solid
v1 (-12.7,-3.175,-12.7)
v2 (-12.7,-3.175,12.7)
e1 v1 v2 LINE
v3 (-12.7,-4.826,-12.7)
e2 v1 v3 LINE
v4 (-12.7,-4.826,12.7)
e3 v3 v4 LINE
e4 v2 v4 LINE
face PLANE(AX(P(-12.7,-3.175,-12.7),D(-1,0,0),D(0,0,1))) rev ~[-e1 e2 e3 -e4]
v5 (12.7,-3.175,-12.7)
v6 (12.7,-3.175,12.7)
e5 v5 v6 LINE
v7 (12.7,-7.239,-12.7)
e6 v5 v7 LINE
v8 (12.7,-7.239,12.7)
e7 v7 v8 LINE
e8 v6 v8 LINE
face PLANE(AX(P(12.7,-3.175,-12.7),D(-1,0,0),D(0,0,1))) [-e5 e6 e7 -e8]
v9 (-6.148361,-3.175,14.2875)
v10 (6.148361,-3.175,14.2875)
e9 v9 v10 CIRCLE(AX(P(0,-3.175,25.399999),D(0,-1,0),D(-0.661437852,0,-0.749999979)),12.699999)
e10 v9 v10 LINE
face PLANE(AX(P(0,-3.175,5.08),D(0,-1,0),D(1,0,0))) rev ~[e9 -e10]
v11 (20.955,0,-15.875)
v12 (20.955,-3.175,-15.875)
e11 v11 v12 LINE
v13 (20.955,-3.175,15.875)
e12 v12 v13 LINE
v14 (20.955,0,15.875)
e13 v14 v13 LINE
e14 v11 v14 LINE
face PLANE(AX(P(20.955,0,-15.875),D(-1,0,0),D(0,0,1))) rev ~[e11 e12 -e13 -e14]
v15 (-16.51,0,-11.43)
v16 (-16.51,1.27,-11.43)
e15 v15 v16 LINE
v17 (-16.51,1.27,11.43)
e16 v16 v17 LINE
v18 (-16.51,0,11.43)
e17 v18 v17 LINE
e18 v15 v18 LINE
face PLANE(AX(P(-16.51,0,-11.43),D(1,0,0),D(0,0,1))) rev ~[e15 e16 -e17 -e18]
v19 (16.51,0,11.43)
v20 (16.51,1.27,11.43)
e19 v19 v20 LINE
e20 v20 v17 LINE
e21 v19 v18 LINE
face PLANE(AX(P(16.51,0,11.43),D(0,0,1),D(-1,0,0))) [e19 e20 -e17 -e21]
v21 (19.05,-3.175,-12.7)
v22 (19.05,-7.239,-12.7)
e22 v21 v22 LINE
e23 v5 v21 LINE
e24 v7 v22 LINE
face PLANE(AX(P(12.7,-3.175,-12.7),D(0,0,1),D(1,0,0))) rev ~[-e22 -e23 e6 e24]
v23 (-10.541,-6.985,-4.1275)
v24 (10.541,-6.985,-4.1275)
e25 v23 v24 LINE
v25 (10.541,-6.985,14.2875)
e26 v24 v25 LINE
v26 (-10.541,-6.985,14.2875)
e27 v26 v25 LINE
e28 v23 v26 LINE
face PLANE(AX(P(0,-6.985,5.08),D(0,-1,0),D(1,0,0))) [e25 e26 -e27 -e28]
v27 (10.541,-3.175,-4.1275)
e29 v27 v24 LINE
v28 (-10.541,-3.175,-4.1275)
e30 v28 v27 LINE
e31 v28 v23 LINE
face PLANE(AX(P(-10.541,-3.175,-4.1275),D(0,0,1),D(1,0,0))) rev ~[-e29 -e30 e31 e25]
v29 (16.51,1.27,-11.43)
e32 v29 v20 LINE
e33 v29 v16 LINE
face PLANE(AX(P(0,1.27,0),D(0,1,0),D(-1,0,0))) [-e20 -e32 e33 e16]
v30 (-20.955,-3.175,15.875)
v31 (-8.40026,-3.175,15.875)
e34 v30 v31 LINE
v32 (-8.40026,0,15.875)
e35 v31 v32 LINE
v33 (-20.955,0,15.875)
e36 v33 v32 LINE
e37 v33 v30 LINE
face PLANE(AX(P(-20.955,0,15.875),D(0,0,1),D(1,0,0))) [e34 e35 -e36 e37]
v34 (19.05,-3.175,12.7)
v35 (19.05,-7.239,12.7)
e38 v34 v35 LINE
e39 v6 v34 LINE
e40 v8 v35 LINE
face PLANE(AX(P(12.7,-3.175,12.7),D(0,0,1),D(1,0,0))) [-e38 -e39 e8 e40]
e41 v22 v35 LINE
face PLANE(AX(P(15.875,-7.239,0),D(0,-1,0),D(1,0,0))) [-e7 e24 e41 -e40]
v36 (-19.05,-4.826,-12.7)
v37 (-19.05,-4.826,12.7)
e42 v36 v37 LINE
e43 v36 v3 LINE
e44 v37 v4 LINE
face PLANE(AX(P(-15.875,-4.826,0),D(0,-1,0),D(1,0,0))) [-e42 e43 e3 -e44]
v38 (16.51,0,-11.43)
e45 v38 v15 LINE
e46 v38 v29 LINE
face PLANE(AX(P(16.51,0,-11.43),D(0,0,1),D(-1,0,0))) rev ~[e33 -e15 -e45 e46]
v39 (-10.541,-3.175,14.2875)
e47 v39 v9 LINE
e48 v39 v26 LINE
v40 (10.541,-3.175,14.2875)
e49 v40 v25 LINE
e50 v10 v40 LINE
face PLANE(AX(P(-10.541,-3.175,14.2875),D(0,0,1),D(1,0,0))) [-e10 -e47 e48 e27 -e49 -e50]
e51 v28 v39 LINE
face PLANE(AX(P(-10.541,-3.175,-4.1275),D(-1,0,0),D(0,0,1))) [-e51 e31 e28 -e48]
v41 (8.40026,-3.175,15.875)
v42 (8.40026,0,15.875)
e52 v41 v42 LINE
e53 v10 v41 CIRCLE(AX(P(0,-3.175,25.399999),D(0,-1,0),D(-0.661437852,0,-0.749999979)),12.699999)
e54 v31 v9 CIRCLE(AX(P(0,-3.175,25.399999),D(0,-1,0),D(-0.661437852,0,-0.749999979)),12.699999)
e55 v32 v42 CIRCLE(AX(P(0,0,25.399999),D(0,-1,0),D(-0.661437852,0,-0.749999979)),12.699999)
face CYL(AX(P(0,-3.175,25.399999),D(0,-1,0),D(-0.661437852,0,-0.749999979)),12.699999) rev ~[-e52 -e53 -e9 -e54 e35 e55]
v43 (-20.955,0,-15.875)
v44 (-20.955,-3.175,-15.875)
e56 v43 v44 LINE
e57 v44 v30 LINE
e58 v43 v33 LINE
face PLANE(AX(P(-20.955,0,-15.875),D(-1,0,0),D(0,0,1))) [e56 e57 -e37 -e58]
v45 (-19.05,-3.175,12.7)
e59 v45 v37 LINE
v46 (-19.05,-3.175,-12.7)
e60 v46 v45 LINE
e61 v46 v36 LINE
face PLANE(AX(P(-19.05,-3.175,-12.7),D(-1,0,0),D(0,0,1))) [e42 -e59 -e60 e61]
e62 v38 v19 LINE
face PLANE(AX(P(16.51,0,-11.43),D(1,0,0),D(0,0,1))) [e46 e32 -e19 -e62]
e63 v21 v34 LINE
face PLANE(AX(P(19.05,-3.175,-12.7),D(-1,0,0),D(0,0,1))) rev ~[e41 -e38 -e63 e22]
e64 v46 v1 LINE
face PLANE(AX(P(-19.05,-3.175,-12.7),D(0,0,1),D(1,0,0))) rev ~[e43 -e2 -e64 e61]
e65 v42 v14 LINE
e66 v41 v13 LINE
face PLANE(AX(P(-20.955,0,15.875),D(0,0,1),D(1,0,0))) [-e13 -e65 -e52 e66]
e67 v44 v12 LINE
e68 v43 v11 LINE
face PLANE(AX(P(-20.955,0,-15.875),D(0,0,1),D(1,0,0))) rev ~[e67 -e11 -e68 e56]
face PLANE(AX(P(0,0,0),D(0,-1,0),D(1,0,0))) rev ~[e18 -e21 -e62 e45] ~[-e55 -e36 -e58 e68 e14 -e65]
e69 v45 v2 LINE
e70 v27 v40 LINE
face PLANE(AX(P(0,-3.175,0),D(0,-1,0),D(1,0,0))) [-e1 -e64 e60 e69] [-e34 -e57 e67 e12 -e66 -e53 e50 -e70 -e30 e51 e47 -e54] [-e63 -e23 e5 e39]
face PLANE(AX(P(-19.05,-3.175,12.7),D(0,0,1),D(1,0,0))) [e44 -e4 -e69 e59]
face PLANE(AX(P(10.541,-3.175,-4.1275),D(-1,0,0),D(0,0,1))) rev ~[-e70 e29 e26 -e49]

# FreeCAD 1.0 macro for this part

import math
import FreeCAD as App
import Part
import Sketcher

V = App.Vector
Q = App.Units.Quantity

doc = App.newDocument("Part")
body = doc.addObject("PartDesign::Body", "Body")

# Sketch on XZ plane
sketch1 = body.newObject("Sketcher::SketchObject", "Sketch")
sketch1.AttachmentSupport = (doc.getObject("XZ_Plane"), [""])
sketch1.MapMode = "FlatFace"
sketch1.addGeometry([
    Part.LineSegment(V(-20.955, 15.875, 0), V(-20.955, -15.875, 0)),
    Part.LineSegment(V(-20.955, -15.875, 0), V(20.955, -15.875, 0)),
    Part.LineSegment(V(20.955, -15.875, 0), V(20.955, 15.875, 0)),
    Part.LineSegment(V(20.955, 15.875, 0), V(-20.955, 15.875, 0)),
], False)
sketch1.addConstraint([
    Sketcher.Constraint("Coincident", 0, 2, 1, 1),
    Sketcher.Constraint("Coincident", 1, 2, 2, 1),
    Sketcher.Constraint("Coincident", 2, 2, 3, 1),
    Sketcher.Constraint("Coincident", 3, 2, 0, 1),
    Sketcher.Constraint("Vertical", 0),
    Sketcher.Constraint("Horizontal", 1),
    Sketcher.Constraint("Vertical", 2),
    Sketcher.Constraint("Horizontal", 3),
    Sketcher.Constraint("Symmetric", 0, 2, 2, 2, -1, 1),
    Sketcher.Constraint("DistanceX", 1, 1, 1, 2, Q("1.65 in")),
    Sketcher.Constraint("DistanceY", 0, 2, 0, 1, Q("1.25 in")),
])
pad1 = body.newObject("PartDesign::Pad", "Pad")
pad1.Profile = sketch1
pad1.Length = Q("0.125 in")

# Sketch on XZ plane
sketch2 = body.newObject("Sketcher::SketchObject", "Sketch001")
sketch2.AttachmentSupport = (doc.getObject("XZ_Plane"), [""])
sketch2.MapMode = "FlatFace"
sketch2.AttachmentOffset = App.Placement(V(0, 0, 0.125 * 25.4), App.Rotation())
sketch2.addGeometry([
    Part.ArcOfCircle(Part.Circle(V(0, 25.399999, 0), V(0, 0, 1), 12.699999), math.radians(-131.409624), math.radians(-48.590376)),
    Part.LineSegment(V(8.40026, 15.875, 0), V(-8.40026, 15.875, 0)),
], False)
sketch2.addConstraint([
    Sketcher.Constraint("Coincident", 0, 1, 1, 2),
    Sketcher.Constraint("Coincident", 1, 1, 0, 2),
    Sketcher.Constraint("Horizontal", 1),
    Sketcher.Constraint("PointOnObject", 0, 3, -2),
    Sketcher.Constraint("Radius", 0, Q("0.5 in")),
    Sketcher.Constraint("DistanceY", -1, 1, 0, 3, Q("1 in")),
    Sketcher.Constraint("DistanceY", -1, 1, 0, 1, Q("0.625 in")),
])
pocket1 = body.newObject("PartDesign::Pocket", "Pocket")
pocket1.Profile = sketch2
pocket1.Type = "ThroughAll"

# Sketch on XZ plane
sketch3 = body.newObject("Sketcher::SketchObject", "Sketch002")
sketch3.AttachmentSupport = (doc.getObject("XZ_Plane"), [""])
sketch3.MapMode = "FlatFace"
sketch3.AttachmentOffset = App.Placement(V(0, 0, 0.125 * 25.4), App.Rotation())
sketch3.addGeometry([
    Part.LineSegment(V(-10.541, 14.2875, 0), V(-10.541, -4.1275, 0)),
    Part.LineSegment(V(-10.541, -4.1275, 0), V(10.541, -4.1275, 0)),
    Part.LineSegment(V(10.541, -4.1275, 0), V(10.541, 14.2875, 0)),
    Part.LineSegment(V(10.541, 14.2875, 0), V(-10.541, 14.2875, 0)),
], False)
sketch3.addConstraint([
    Sketcher.Constraint("Coincident", 0, 2, 1, 1),
    Sketcher.Constraint("Coincident", 1, 2, 2, 1),
    Sketcher.Constraint("Coincident", 2, 2, 3, 1),
    Sketcher.Constraint("Coincident", 3, 2, 0, 1),
    Sketcher.Constraint("Vertical", 0),
    Sketcher.Constraint("Horizontal", 1),
    Sketcher.Constraint("Vertical", 2),
    Sketcher.Constraint("Horizontal", 3),
    Sketcher.Constraint("DistanceX", 1, 1, 1, 2, Q("0.83 in")),
    Sketcher.Constraint("DistanceY", 0, 2, 0, 1, Q("0.725 in")),
    Sketcher.Constraint("DistanceX", 0, 2, -1, 1, Q("0.415 in")),
    Sketcher.Constraint("DistanceY", -1, 1, 2, 2, Q("0.5625 in")),
])
pad2 = body.newObject("PartDesign::Pad", "Pad001")
pad2.Profile = sketch3
pad2.Length = Q("0.15 in")

# Sketch on XZ plane
sketch4 = body.newObject("Sketcher::SketchObject", "Sketch003")
sketch4.AttachmentSupport = (doc.getObject("XZ_Plane"), [""])
sketch4.MapMode = "FlatFace"
sketch4.AttachmentOffset = App.Placement(V(0, 0, 0.125 * 25.4), App.Rotation())
sketch4.addGeometry([
    Part.LineSegment(V(12.7, 12.7, 0), V(12.7, -12.7, 0)),
    Part.LineSegment(V(12.7, -12.7, 0), V(19.05, -12.7, 0)),
    Part.LineSegment(V(19.05, -12.7, 0), V(19.05, 12.7, 0)),
    Part.LineSegment(V(19.05, 12.7, 0), V(12.7, 12.7, 0)),
], False)
sketch4.addConstraint([
    Sketcher.Constraint("Coincident", 0, 2, 1, 1),
    Sketcher.Constraint("Coincident", 1, 2, 2, 1),
    Sketcher.Constraint("Coincident", 2, 2, 3, 1),
    Sketcher.Constraint("Coincident", 3, 2, 0, 1),
    Sketcher.Constraint("Vertical", 0),
    Sketcher.Constraint("Horizontal", 1),
    Sketcher.Constraint("Vertical", 2),
    Sketcher.Constraint("Horizontal", 3),
    Sketcher.Constraint("DistanceY", 0, 2, 0, 1, Q("1 in")),
    Sketcher.Constraint("DistanceX", 1, 1, 1, 2, Q("0.25 in")),
    Sketcher.Constraint("DistanceX", -1, 1, 0, 2, Q("0.5 in")),
    Sketcher.Constraint("DistanceY", 0, 2, -1, 1, Q("0.5 in")),
])
pad3 = body.newObject("PartDesign::Pad", "Pad002")
pad3.Profile = sketch4
pad3.Length = Q("0.16 in")

# Sketch on XZ plane
sketch5 = body.newObject("Sketcher::SketchObject", "Sketch004")
sketch5.AttachmentSupport = (doc.getObject("XZ_Plane"), [""])
sketch5.MapMode = "FlatFace"
sketch5.AttachmentOffset = App.Placement(V(0, 0, 0.125 * 25.4), App.Rotation())
sketch5.addGeometry([
    Part.LineSegment(V(-19.05, 12.7, 0), V(-19.05, -12.7, 0)),
    Part.LineSegment(V(-19.05, -12.7, 0), V(-12.7, -12.7, 0)),
    Part.LineSegment(V(-12.7, -12.7, 0), V(-12.7, 12.7, 0)),
    Part.LineSegment(V(-12.7, 12.7, 0), V(-19.05, 12.7, 0)),
], False)
sketch5.addConstraint([
    Sketcher.Constraint("Coincident", 0, 2, 1, 1),
    Sketcher.Constraint("Coincident", 1, 2, 2, 1),
    Sketcher.Constraint("Coincident", 2, 2, 3, 1),
    Sketcher.Constraint("Coincident", 3, 2, 0, 1),
    Sketcher.Constraint("Vertical", 0),
    Sketcher.Constraint("Horizontal", 1),
    Sketcher.Constraint("Vertical", 2),
    Sketcher.Constraint("Horizontal", 3),
    Sketcher.Constraint("DistanceY", 0, 2, 0, 1, Q("1 in")),
    Sketcher.Constraint("DistanceX", 1, 1, 1, 2, Q("0.25 in")),
    Sketcher.Constraint("DistanceY", 0, 2, -1, 1, Q("0.5 in")),
    Sketcher.Constraint("DistanceX", 1, 2, -1, 1, Q("0.5 in")),
])
pad4 = body.newObject("PartDesign::Pad", "Pad003")
pad4.Profile = sketch5
pad4.Length = Q("0.065 in")

# Sketch on XZ plane
sketch6 = body.newObject("Sketcher::SketchObject", "Sketch005")
sketch6.AttachmentSupport = (doc.getObject("XZ_Plane"), [""])
sketch6.MapMode = "FlatFace"
sketch6.addGeometry([
    Part.LineSegment(V(16.51, 11.43, 0), V(16.51, -11.43, 0)),
    Part.LineSegment(V(16.51, -11.43, 0), V(-16.51, -11.43, 0)),
    Part.LineSegment(V(-16.51, -11.43, 0), V(-16.51, 11.43, 0)),
    Part.LineSegment(V(-16.51, 11.43, 0), V(16.51, 11.43, 0)),
], False)
sketch6.addConstraint([
    Sketcher.Constraint("Coincident", 0, 2, 1, 1),
    Sketcher.Constraint("Coincident", 1, 2, 2, 1),
    Sketcher.Constraint("Coincident", 2, 2, 3, 1),
    Sketcher.Constraint("Coincident", 3, 2, 0, 1),
    Sketcher.Constraint("Vertical", 0),
    Sketcher.Constraint("Horizontal", 1),
    Sketcher.Constraint("Vertical", 2),
    Sketcher.Constraint("Horizontal", 3),
    Sketcher.Constraint("Symmetric", 0, 2, 2, 2, -1, 1),
    Sketcher.Constraint("DistanceX", 1, 2, 1, 1, Q("1.3 in")),
    Sketcher.Constraint("DistanceY", 0, 2, 0, 1, Q("0.9 in")),
])
pad5 = body.newObject("PartDesign::Pad", "Pad004")
pad5.Profile = sketch6
pad5.Length = Q("0.05 in")
pad5.Reversed = True

doc.recompute()
